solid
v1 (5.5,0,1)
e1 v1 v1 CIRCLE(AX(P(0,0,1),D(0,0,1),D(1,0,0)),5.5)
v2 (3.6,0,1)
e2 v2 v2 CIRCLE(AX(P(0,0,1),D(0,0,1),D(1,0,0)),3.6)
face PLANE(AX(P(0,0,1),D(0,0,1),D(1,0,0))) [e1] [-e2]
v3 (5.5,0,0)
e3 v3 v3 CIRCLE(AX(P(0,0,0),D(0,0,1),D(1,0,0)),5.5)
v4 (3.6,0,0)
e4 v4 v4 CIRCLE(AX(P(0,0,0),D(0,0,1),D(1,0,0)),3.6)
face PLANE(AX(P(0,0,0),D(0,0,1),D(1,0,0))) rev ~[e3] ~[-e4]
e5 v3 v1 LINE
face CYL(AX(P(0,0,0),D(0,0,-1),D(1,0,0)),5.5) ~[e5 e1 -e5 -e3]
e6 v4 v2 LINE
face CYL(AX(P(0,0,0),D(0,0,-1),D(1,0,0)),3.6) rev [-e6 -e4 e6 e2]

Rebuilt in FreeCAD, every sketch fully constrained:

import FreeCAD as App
import Part
import Sketcher

doc = App.newDocument("Part")
params = doc.addObject("Spreadsheet::Sheet", "Params")
for row, (alias, value) in enumerate([
    ("sketch1_diameter", "11 mm"),
    ("sketch1_diameter2", "7.2 mm"),
    ("pad1_length", "1 mm"),
], start=1):
    params.set(f"A{row}", alias)
    params.set(f"B{row}", "=" + value)
    params.setAlias(f"B{row}", alias)

body = doc.addObject("PartDesign::Body", "Body")

# Sketch on XY plane
sketch1 = body.newObject("Sketcher::SketchObject", "Sketch")
sketch1.AttachmentSupport = (doc.getObject("XY_Plane"), [""])
sketch1.MapMode = "FlatFace"
sketch1.addGeometry([
    Part.Circle(App.Vector(0, 0, 0), App.Vector(0, 0, 1), 5.5),
    Part.Circle(App.Vector(0, 0, 0), App.Vector(0, 0, 1), 3.6),
], False)
sketch1.addConstraint([
    Sketcher.Constraint("Coincident", 0, 3, -1, 1),
    Sketcher.Constraint("Coincident", 1, 3, -1, 1),
    Sketcher.Constraint("Diameter", 0, 11.0),
    Sketcher.Constraint("Diameter", 1, 7.2),
])
sketch1.setExpression("Constraints[2]", "Params.sketch1_diameter")
sketch1.setExpression("Constraints[3]", "Params.sketch1_diameter2")
pad1 = body.newObject("PartDesign::Pad", "Pad")
pad1.Profile = sketch1
pad1.setExpression("Length", "Params.pad1_length")

doc.recompute()
